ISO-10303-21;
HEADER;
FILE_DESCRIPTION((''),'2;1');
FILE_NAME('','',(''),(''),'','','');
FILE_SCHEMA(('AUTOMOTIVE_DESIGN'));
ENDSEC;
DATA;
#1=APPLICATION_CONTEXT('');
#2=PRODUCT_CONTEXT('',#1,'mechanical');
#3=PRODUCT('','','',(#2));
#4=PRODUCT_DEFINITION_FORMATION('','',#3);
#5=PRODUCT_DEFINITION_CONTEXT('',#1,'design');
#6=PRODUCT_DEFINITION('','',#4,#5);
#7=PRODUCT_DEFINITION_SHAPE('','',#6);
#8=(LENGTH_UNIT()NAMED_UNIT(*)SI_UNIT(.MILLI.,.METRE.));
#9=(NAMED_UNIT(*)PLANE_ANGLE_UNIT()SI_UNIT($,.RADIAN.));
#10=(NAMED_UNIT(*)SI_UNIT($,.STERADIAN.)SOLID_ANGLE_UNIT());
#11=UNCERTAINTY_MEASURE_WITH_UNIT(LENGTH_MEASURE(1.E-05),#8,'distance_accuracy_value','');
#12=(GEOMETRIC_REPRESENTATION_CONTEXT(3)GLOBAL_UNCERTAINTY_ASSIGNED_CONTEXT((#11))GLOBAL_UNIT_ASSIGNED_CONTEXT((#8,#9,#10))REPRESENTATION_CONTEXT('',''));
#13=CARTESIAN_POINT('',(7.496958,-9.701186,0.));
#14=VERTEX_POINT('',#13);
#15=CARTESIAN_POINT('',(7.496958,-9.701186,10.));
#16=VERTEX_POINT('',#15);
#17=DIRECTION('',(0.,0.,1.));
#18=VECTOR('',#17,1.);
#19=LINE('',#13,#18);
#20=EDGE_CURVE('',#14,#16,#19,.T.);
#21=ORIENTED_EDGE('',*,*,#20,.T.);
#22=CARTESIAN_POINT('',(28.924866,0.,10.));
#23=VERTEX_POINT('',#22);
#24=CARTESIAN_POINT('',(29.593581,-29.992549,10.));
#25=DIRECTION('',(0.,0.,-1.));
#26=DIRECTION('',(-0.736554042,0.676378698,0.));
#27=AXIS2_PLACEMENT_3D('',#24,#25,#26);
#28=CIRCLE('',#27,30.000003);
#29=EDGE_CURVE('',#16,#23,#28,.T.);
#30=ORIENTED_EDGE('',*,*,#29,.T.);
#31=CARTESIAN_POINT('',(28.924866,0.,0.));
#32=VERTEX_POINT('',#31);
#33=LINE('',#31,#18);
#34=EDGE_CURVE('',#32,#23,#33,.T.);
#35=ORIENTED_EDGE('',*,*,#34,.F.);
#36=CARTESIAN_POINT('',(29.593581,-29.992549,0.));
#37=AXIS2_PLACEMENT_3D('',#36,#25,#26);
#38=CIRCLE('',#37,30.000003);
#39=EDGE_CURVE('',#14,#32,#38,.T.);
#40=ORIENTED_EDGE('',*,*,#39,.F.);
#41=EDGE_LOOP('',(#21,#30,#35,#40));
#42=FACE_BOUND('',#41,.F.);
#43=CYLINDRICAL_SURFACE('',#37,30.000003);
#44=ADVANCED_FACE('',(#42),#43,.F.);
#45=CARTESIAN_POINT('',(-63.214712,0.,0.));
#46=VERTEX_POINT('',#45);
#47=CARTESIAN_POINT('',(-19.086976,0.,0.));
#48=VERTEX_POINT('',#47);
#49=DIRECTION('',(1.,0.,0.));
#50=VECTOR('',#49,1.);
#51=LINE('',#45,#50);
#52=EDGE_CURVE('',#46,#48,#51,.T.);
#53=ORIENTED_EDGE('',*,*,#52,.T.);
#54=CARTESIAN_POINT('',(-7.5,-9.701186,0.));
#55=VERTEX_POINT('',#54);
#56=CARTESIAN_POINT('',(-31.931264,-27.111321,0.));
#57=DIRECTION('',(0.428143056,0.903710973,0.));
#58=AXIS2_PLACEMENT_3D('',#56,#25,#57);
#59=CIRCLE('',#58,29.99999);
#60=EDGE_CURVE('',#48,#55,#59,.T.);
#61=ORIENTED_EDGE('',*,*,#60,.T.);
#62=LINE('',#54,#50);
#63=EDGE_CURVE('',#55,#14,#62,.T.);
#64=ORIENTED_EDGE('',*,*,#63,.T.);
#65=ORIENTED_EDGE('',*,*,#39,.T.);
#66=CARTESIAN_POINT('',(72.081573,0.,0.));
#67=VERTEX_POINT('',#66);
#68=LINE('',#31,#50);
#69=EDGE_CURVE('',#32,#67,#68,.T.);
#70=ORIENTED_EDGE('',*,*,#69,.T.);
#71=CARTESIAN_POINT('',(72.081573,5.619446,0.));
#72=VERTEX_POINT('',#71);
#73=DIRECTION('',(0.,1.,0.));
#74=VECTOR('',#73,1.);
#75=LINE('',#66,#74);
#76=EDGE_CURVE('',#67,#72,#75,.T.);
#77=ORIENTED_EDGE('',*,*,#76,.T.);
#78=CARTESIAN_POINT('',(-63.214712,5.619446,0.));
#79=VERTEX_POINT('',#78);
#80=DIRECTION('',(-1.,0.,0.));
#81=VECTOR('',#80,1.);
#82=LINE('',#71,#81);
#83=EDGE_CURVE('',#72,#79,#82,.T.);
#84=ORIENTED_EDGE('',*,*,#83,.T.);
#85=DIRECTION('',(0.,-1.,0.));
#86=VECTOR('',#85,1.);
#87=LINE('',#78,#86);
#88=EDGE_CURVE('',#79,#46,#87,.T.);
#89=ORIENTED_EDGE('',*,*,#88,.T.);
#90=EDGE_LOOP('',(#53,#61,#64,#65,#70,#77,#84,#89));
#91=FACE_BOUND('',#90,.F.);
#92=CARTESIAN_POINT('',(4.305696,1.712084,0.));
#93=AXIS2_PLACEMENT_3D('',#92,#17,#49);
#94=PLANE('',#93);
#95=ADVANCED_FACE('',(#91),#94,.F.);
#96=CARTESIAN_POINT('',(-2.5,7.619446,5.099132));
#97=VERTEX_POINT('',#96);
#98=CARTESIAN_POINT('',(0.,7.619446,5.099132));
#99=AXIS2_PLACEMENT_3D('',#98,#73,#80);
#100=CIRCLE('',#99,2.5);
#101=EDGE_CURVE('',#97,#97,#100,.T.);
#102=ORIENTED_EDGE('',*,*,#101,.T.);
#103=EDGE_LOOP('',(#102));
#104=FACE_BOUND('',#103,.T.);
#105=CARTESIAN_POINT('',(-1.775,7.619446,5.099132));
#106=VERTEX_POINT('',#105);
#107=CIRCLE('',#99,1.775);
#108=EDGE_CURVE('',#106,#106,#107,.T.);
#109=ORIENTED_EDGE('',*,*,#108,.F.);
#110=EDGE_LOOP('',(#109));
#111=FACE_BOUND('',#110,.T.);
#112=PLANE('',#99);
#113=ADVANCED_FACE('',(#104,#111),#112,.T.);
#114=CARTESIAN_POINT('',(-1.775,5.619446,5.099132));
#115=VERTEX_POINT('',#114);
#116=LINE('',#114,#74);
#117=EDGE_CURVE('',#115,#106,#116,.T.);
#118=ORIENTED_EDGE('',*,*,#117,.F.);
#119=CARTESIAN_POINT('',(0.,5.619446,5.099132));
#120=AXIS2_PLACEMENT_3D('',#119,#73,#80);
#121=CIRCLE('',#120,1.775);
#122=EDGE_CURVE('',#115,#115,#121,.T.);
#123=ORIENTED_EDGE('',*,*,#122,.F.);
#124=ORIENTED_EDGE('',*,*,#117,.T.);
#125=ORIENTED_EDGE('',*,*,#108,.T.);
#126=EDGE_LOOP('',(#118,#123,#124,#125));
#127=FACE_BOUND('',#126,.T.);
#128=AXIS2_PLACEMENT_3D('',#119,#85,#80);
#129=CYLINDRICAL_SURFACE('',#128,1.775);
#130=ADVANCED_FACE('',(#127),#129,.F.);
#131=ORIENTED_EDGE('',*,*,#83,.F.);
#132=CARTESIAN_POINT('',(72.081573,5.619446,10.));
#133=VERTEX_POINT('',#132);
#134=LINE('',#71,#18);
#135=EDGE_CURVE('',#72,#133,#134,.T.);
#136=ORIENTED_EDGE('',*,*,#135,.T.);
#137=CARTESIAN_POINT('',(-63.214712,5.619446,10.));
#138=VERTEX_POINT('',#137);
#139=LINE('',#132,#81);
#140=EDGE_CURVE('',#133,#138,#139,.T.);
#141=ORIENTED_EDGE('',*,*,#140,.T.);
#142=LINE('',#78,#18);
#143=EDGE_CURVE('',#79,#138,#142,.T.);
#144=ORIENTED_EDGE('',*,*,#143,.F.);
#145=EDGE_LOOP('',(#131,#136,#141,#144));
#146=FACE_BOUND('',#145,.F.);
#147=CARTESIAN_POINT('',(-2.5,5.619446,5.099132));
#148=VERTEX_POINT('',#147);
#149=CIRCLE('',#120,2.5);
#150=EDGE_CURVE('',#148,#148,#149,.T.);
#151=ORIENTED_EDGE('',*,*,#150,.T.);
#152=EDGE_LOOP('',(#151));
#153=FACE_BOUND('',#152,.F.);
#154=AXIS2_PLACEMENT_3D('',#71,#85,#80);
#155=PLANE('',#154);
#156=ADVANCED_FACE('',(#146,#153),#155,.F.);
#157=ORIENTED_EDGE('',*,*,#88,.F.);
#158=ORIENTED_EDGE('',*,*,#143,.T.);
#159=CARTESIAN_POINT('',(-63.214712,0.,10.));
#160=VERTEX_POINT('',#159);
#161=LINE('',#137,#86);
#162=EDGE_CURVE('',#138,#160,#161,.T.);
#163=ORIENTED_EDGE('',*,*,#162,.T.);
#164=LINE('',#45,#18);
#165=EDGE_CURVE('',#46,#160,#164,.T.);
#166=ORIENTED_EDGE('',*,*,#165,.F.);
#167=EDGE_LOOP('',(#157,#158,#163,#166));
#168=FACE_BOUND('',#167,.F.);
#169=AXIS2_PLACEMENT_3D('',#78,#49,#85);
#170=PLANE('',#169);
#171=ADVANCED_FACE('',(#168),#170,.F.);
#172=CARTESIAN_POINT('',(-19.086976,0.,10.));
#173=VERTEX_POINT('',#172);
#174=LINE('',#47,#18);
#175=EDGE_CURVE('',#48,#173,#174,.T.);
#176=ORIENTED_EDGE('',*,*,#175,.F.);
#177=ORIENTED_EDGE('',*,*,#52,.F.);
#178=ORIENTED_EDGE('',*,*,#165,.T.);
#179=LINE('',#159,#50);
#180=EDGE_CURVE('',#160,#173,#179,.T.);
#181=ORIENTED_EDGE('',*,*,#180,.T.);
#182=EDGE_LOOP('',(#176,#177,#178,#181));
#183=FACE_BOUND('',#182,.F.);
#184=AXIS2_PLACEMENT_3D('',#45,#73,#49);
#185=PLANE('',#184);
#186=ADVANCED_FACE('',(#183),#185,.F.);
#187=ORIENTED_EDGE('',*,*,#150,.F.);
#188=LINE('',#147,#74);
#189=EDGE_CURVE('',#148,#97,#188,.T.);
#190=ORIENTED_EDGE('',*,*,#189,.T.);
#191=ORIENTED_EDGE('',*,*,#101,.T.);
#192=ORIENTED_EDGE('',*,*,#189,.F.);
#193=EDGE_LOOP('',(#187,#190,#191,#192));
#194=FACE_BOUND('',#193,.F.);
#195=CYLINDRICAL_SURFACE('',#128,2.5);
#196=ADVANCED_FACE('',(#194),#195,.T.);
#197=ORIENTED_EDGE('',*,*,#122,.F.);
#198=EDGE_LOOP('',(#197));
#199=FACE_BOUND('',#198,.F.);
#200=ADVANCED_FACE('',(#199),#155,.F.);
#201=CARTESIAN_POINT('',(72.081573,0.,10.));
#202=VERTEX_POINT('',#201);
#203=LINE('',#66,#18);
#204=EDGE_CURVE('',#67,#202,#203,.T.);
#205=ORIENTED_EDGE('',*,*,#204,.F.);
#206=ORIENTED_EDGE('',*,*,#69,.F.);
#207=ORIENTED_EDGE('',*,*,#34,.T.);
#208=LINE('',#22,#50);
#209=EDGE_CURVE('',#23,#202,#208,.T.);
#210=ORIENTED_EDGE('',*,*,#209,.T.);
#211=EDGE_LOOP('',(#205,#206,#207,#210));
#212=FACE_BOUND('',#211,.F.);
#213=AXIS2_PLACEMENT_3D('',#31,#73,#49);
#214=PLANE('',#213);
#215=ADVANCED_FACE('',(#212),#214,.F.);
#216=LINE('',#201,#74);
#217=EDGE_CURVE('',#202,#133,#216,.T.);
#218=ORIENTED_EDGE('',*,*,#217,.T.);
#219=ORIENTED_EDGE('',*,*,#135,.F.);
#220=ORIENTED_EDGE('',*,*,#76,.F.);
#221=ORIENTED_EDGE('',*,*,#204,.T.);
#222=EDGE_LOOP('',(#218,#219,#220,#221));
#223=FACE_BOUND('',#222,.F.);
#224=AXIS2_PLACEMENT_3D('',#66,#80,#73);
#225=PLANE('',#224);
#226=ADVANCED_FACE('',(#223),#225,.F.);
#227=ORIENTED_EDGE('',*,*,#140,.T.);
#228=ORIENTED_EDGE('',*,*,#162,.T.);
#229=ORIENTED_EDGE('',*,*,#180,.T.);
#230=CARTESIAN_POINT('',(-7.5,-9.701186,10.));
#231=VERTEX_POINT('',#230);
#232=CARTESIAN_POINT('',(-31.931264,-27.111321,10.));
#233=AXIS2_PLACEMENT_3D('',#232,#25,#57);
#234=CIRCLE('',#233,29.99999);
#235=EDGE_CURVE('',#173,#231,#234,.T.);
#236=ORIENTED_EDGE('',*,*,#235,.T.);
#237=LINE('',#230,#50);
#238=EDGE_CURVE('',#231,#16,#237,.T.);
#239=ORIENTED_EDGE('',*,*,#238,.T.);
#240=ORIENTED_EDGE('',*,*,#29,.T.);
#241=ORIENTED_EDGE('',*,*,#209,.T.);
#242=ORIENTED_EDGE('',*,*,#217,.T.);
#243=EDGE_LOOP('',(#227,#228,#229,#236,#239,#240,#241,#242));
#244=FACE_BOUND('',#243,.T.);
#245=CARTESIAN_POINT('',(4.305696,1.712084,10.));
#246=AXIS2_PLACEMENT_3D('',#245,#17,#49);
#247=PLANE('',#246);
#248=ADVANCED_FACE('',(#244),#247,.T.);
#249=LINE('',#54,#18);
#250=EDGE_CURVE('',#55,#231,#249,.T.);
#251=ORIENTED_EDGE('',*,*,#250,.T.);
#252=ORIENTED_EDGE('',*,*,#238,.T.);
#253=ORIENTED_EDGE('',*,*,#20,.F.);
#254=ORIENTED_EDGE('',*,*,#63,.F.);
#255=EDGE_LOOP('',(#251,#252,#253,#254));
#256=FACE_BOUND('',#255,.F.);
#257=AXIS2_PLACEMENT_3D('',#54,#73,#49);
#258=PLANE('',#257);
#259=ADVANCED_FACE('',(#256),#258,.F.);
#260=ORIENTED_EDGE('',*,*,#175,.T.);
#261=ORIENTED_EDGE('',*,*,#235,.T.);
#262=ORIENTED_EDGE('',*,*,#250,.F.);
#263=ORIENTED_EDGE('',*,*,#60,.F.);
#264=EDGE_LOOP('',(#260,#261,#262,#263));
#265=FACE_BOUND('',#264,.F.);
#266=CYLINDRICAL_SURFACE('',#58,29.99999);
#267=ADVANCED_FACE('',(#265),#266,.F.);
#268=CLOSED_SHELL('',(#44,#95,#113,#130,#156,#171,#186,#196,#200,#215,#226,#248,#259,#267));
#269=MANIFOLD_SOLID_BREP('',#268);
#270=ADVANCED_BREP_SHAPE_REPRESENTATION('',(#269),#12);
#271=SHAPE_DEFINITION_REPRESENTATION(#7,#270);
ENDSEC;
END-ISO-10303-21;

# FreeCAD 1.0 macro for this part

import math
import FreeCAD as App
import Part
import Sketcher

V = App.Vector

doc = App.newDocument("Part")
params = doc.addObject("Spreadsheet::Sheet", "Params")
for row, (alias, value) in enumerate([
    ("pad1_length", "10 mm"),
    ("sketch2_diameter", "5 mm"),
    ("sketch2_diameter2", "3.55 mm"),
    ("pad2_length", "2 mm"),
], start=1):
    params.set(f"A{row}", alias)
    params.set(f"B{row}", "=" + value)
    params.setAlias(f"B{row}", alias)

body = doc.addObject("PartDesign::Body", "Body")

# Sketch on XY plane
sketch1 = body.newObject("Sketcher::SketchObject", "Sketch")
sketch1.AttachmentSupport = (doc.getObject("XY_Plane"), [""])
sketch1.MapMode = "FlatFace"
sketch1.addGeometry(Part.ArcOfCircle(Part.Circle(V(-32, -27, 0), V(0, 0, 1), 30), math.radians(35), math.radians(65)), False)
sketch1.addGeometry(Part.LineSegment(V(-8, -10, 0), V(7, -10, 0)), False)
sketch1.addGeometry(Part.ArcOfCircle(Part.Circle(V(30, -30, 0), V(0, 0, 1), 30), math.radians(91), math.radians(137)), False)
sketch1.addGeometry(Part.LineSegment(V(29, 0, 0), V(72, 0, 0)), False)
sketch1.addGeometry(Part.LineSegment(V(72, 0, 0), V(72, 6, 0)), False)
sketch1.addGeometry(Part.LineSegment(V(72, 6, 0), V(-63, 6, 0)), False)
sketch1.addGeometry(Part.LineSegment(V(-63, 6, 0), V(-63, 0, 0)), False)
sketch1.addGeometry(Part.LineSegment(V(-63, 0, 0), V(-19, 0, 0)), False)
sketch1.addConstraint(Sketcher.Constraint("Coincident", 0, 1, 1, 1))
sketch1.addConstraint(Sketcher.Constraint("Coincident", 1, 2, 2, 2))
sketch1.addConstraint(Sketcher.Constraint("Coincident", 2, 1, 3, 1))
sketch1.addConstraint(Sketcher.Constraint("Coincident", 3, 2, 4, 1))
sketch1.addConstraint(Sketcher.Constraint("Coincident", 4, 2, 5, 1))
sketch1.addConstraint(Sketcher.Constraint("Coincident", 5, 2, 6, 1))
sketch1.addConstraint(Sketcher.Constraint("Coincident", 6, 2, 7, 1))
sketch1.addConstraint(Sketcher.Constraint("Coincident", 7, 2, 0, 2))
sketch1.addConstraint(Sketcher.Constraint("Horizontal", 1))
sketch1.addConstraint(Sketcher.Constraint("Horizontal", 3))
sketch1.addConstraint(Sketcher.Constraint("Vertical", 4))
sketch1.addConstraint(Sketcher.Constraint("Horizontal", 5))
sketch1.addConstraint(Sketcher.Constraint("Vertical", 6))
sketch1.addConstraint(Sketcher.Constraint("Horizontal", 7))
sketch1.addConstraint(Sketcher.Constraint("PointOnObject", 2, 1, -1))
sketch1.addConstraint(Sketcher.Constraint("PointOnObject", 6, 2, -1))
sketch1.addConstraint(Sketcher.Constraint("DistanceX", 0, 1, -1, 1, 7.5))
sketch1.addConstraint(Sketcher.Constraint("Radius", 0, 29.99999))
sketch1.addConstraint(Sketcher.Constraint("Radius", 2, 30.000003))
sketch1.addConstraint(Sketcher.Constraint("DistanceX", 1, 1, 1, 2, 14.996958))
sketch1.addConstraint(Sketcher.Constraint("DistanceX", 3, 1, 3, 2, 43.156707))
sketch1.addConstraint(Sketcher.Constraint("DistanceX", 5, 2, 5, 1, 135.296285))
sketch1.addConstraint(Sketcher.Constraint("DistanceX", 7, 1, 7, 2, 44.127736))
sketch1.addConstraint(Sketcher.Constraint("DistanceY", 4, 1, 4, 2, 5.619446))
sketch1.addConstraint(Sketcher.Constraint("DistanceY", 0, 3, -1, 1, 27.111321))
sketch1.addConstraint(Sketcher.Constraint("DistanceX", -1, 1, 2, 3, 29.593581))
pad1 = body.newObject("PartDesign::Pad", "Pad")
pad1.Profile = sketch1
pad1.setExpression("Length", "Params.pad1_length")

# Sketch on XZ plane
sketch2 = body.newObject("Sketcher::SketchObject", "Sketch001")
sketch2.AttachmentSupport = (doc.getObject("XZ_Plane"), [""])
sketch2.MapMode = "FlatFace"
sketch2.AttachmentOffset = App.Placement(V(0, 0, -5.619446), App.Rotation())
sketch2.addGeometry(Part.Circle(V(0, 5.1, 0), V(0, 0, 1), 2.5), False)
sketch2.addGeometry(Part.Circle(V(0, 5.1, 0), V(0, 0, 1), 1.8), False)
sketch2.addConstraint(Sketcher.Constraint("Coincident", 1, 3, 0, 3))
sketch2.addConstraint(Sketcher.Constraint("PointOnObject", 0, 3, -2))
sketch2.addConstraint(Sketcher.Constraint("Diameter", 0, 5.0))
sketch2.addConstraint(Sketcher.Constraint("Diameter", 1, 3.55))
sketch2.addConstraint(Sketcher.Constraint("DistanceY", -1, 1, 0, 3, 5.099132))
sketch2.setExpression("Constraints[2]", "Params.sketch2_diameter")
sketch2.setExpression("Constraints[3]", "Params.sketch2_diameter2")
pad2 = body.newObject("PartDesign::Pad", "Pad001")
pad2.Profile = sketch2
pad2.setExpression("Length", "Params.pad2_length")
pad2.Reversed = True

doc.recompute()
